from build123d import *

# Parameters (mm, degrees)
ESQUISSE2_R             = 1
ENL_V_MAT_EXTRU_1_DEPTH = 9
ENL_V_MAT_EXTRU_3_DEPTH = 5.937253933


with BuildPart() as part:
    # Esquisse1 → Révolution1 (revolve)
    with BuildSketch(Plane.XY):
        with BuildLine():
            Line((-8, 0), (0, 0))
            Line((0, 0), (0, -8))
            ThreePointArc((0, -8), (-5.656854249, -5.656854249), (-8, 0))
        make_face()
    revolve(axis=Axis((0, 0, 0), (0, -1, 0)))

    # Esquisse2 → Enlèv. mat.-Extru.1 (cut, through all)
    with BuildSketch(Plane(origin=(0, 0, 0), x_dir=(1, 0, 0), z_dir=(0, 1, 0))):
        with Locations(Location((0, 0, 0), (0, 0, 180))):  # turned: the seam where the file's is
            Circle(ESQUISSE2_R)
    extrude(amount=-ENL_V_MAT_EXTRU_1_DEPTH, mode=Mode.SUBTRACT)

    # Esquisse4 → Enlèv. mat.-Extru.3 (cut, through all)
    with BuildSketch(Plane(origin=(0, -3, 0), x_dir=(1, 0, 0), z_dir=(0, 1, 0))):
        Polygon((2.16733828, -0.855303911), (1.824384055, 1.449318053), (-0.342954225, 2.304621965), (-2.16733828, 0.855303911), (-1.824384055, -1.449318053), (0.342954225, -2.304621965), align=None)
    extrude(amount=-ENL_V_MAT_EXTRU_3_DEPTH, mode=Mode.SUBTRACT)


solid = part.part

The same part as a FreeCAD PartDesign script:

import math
import FreeCAD as App
import Part
import Sketcher
from FreeCAD import Vector
Q = App.Units.Quantity


def add_polygon(sketch, points):
    """Adds a closed chain of lines whose ends are joined by coincident constraints."""
    first, n = sketch.GeometryCount, len(points)
    for a, b in zip(points, points[1:] + points[:1]):
        sketch.addGeometry(Part.LineSegment(App.Vector(*a, 0), App.Vector(*b, 0)), False)
    for i in range(n):
        sketch.addConstraint(Sketcher.Constraint("Coincident", first + i, 2, first + (i + 1) % n, 1))

doc = App.newDocument("Part")
body = doc.addObject("PartDesign::Body", "Body")

# Sketch on XY plane
sketch1 = doc.addObject("Sketcher::SketchObject", "Sketch")
body.addObject(sketch1)
sketch1.AttachmentSupport = (doc.XY_Plane, [""])
sketch1.MapMode = "FlatFace"
sketch1.addGeometry([
    Part.LineSegment(Vector(0, 0, 0), Vector(-8, 0, 0)),
    Part.ArcOfCircle(Part.Circle(Vector(0, 0, 0), Vector(0, 0, 1), 8), math.radians(-180), math.radians(-90)),
    Part.LineSegment(Vector(0, -8, 0), Vector(0, 0, 0)),
], False)
sketch1.addConstraint([
    Sketcher.Constraint("Coincident", 0, 2, 1, 1),
    Sketcher.Constraint("Coincident", 1, 2, 2, 1),
    Sketcher.Constraint("Coincident", 2, 2, 0, 1),
    Sketcher.Constraint("Horizontal", 0),
    Sketcher.Constraint("Vertical", 2),
    Sketcher.Constraint("Coincident", 1, 3, -1, 1),
    Sketcher.Constraint("Coincident", 2, 2, -1, 1),
    Sketcher.Constraint("Radius", 1, Q("8 mm")),
])
revolution = doc.addObject("PartDesign::Revolution", "Revolution")
body.addObject(revolution)
revolution.Profile = sketch1
revolution.ReferenceAxis = (sketch1, ["V_Axis"])
revolution.Angle = 360

# Sketch on XZ plane
sketch2 = doc.addObject("Sketcher::SketchObject", "Sketch001")
body.addObject(sketch2)
sketch2.AttachmentSupport = (doc.XZ_Plane, [""])
sketch2.MapMode = "FlatFace"
sketch2.addGeometry(Part.Circle(Vector(0, 0, 0), Vector(0, 0, 1), 1), False)
sketch2.addConstraint([
    Sketcher.Constraint("Coincident", 0, 3, -1, 1),
    Sketcher.Constraint("Diameter", 0, Q("2 mm")),
])
pocket1 = doc.addObject("PartDesign::Pocket", "Pocket")
body.addObject(pocket1)
pocket1.Profile = sketch2
pocket1.Type = "ThroughAll"
pocket1.Reversed = True

# Sketch on XZ plane
sketch3 = doc.addObject("Sketcher::SketchObject", "Sketch002")
body.addObject(sketch3)
sketch3.AttachmentSupport = (doc.XZ_Plane, [""])
sketch3.MapMode = "FlatFace"
sketch3.AttachmentOffset = App.Placement(Vector(0, 0, 3), App.Rotation())
add_polygon(sketch3, [(2.2, 0.9), (1.8, -1.4), (-0.3, -2.3), (-2.2, -0.9), (-1.8, 1.4), (0.3, 2.3)])  # lines 0-5
sketch3.addConstraint([
    Sketcher.Constraint("Symmetric", 0, 2, 3, 2, -1, 1),
    Sketcher.Constraint("Symmetric", 1, 2, 4, 2, -1, 1),
    Sketcher.Constraint("Symmetric", 2, 2, 5, 2, -1, 1),
    Sketcher.Constraint("Equal", 0, 1),
    Sketcher.Constraint("Equal", 1, 2),
    Sketcher.Constraint("Distance", 0, Q("2.33 mm")),
    Sketcher.Constraint("DistanceY", 0, 2, -1, 1, Q("1.449318 mm")),
    Sketcher.Constraint("DistanceY", 1, 2, -1, 1, Q("2.304622 mm")),
    Sketcher.Constraint("DistanceX", 2, 2, -1, 1, Q("2.167338 mm")),
])
pocket2 = doc.addObject("PartDesign::Pocket", "Pocket001")
body.addObject(pocket2)
pocket2.Profile = sketch3
pocket2.Type = "ThroughAll"
pocket2.Reversed = True

doc.recompute()
